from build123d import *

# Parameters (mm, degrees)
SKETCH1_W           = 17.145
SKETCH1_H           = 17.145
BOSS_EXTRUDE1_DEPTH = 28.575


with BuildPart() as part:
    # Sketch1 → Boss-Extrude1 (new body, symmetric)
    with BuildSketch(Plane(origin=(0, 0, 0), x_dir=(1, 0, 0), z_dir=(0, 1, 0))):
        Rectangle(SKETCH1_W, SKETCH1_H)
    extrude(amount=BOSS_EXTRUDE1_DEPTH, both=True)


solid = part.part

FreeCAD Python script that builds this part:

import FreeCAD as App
import Part
import Sketcher
from FreeCAD import Vector
Q = App.Units.Quantity

doc = App.newDocument("Part")
body = doc.addObject("PartDesign::Body", "Body")

sketch1 = body.newObject("Sketcher::SketchObject", "Sketch")
sketch1.AttachmentSupport = (doc.getObject("XZ_Plane"), [""])
sketch1.MapMode = "FlatFace"
sketch1.addGeometry([
    Part.LineSegment(Vector(-8.5725, -8.5725, 0), Vector(-8.5725, 8.5725, 0)),
    Part.LineSegment(Vector(-8.5725, 8.5725, 0), Vector(8.5725, 8.5725, 0)),
    Part.LineSegment(Vector(8.5725, 8.5725, 0), Vector(8.5725, -8.5725, 0)),
    Part.LineSegment(Vector(8.5725, -8.5725, 0), Vector(-8.5725, -8.5725, 0)),
], False)
sketch1.addConstraint([
    Sketcher.Constraint("Coincident", 0, 2, 1, 1),
    Sketcher.Constraint("Coincident", 1, 2, 2, 1),
    Sketcher.Constraint("Coincident", 2, 2, 3, 1),
    Sketcher.Constraint("Coincident", 3, 2, 0, 1),
    Sketcher.Constraint("Vertical", 0),
    Sketcher.Constraint("Horizontal", 1),
    Sketcher.Constraint("Vertical", 2),
    Sketcher.Constraint("Horizontal", 3),
    Sketcher.Constraint("Symmetric", 0, 2, 2, 2, -1, 1),
    Sketcher.Constraint("Equal", 3, 0),
    Sketcher.Constraint("DistanceX", 1, 1, 1, 2, Q("0.675 in")),
])
pad1 = body.newObject("PartDesign::Pad", "Pad")
pad1.Profile = sketch1
pad1.Length = Q("2.25 in")
pad1.Midplane = True

doc.recompute()
